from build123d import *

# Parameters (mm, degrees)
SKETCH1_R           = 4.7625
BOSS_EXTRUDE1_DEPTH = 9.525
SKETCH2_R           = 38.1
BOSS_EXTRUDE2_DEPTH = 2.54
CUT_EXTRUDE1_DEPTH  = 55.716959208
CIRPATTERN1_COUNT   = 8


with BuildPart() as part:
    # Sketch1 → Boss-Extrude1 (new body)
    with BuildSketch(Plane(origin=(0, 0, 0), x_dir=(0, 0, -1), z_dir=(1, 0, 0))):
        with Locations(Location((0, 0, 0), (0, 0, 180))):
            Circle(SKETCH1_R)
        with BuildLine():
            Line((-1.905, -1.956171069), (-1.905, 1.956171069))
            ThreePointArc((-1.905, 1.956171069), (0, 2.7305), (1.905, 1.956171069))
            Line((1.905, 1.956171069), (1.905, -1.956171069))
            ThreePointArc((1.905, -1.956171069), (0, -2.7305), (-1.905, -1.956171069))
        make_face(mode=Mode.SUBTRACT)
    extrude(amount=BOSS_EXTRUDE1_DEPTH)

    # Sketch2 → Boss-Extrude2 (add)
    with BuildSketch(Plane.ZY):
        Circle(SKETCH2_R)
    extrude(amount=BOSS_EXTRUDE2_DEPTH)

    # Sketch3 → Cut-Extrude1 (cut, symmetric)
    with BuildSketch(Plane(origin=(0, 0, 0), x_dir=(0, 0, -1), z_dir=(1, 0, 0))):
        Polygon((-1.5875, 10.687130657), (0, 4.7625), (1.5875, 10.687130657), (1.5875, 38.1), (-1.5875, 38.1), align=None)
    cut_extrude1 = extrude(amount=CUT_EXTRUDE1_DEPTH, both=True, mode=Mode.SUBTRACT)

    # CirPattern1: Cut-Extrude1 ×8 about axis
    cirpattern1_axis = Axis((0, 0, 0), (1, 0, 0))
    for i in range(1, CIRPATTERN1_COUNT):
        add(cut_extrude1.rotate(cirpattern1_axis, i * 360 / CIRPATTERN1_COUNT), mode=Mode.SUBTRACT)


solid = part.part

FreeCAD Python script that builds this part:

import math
import FreeCAD as App
import Part
import Sketcher

V = App.Vector
Q = App.Units.Quantity

doc = App.newDocument("Part")
params = doc.addObject("Spreadsheet::Sheet", "Params")
for row, (alias, value) in enumerate([
    ("sketch1_diameter", "0.375 in"),
    ("pad1_length", "0.375 in"),
    ("sketch2_diameter", "3 in"),
    ("pad2_length", "0.1 in"),
    ("sketch3_height", "0.125 in"),
    ("pocket1_length", "111.433918 mm"),
], start=1):
    params.set(f"A{row}", alias)
    params.set(f"B{row}", "=" + value)
    params.setAlias(f"B{row}", alias)

body = doc.addObject("PartDesign::Body", "Body")

sketch1 = body.newObject("Sketcher::SketchObject", "Sketch")
sketch1.AttachmentSupport = (doc.getObject("YZ_Plane"), [""])
sketch1.MapMode = "FlatFace"
sketch1.addGeometry(Part.Circle(V(0, 0, 0), V(0, 0, 1), 4.8), False)
sketch1.addGeometry(Part.ArcOfCircle(Part.Circle(V(0, 0, 0), V(0, 0, 1), 2.7), math.radians(136), math.radians(224)), False)
sketch1.addGeometry(Part.LineSegment(V(-2, 1.9, 0), V(2, 1.9, 0)), False)
sketch1.addGeometry(Part.ArcOfCircle(Part.Circle(V(0, 0, 0), V(0, 0, 1), 2.7), math.radians(-44), math.radians(44)), False)
sketch1.addGeometry(Part.LineSegment(V(2, -1.9, 0), V(-2, -1.9, 0)), False)
sketch1.addConstraint(Sketcher.Constraint("Coincident", 1, 1, 2, 1))
sketch1.addConstraint(Sketcher.Constraint("Coincident", 2, 2, 3, 2))
sketch1.addConstraint(Sketcher.Constraint("Coincident", 3, 1, 4, 1))
sketch1.addConstraint(Sketcher.Constraint("Coincident", 4, 2, 1, 2))
sketch1.addConstraint(Sketcher.Constraint("Horizontal", 2))
sketch1.addConstraint(Sketcher.Constraint("Horizontal", 4))
sketch1.addConstraint(Sketcher.Constraint("Coincident", 0, 3, -1, 1))
sketch1.addConstraint(Sketcher.Constraint("Coincident", 1, 3, -1, 1))
sketch1.addConstraint(Sketcher.Constraint("Coincident", 3, 3, -1, 1))
sketch1.addConstraint(Sketcher.Constraint("Equal", 1, 3))
sketch1.addConstraint(Sketcher.Constraint("Vertical", 2, 2, 3, 1))
sketch1.addConstraint(Sketcher.Constraint("Diameter", 0, Q("0.375 in")))
sketch1.addConstraint(Sketcher.Constraint("Radius", 1, Q("0.1075 in")))
sketch1.addConstraint(Sketcher.Constraint("DistanceY", 3, 1, 2, 2, Q("0.15 in")))
sketch1.setExpression("Constraints[11]", "Params.sketch1_diameter")
pad1 = body.newObject("PartDesign::Pad", "Pad")
pad1.Profile = sketch1
pad1.setExpression("Length", "Params.pad1_length")

sketch2 = body.newObject("Sketcher::SketchObject", "Sketch001")
sketch2.AttachmentSupport = (doc.getObject("YZ_Plane"), [""])
sketch2.MapMode = "FlatFace"
sketch2.addGeometry(Part.Circle(V(0, 0, 0), V(0, 0, 1), 38), False)
sketch2.addConstraint(Sketcher.Constraint("Coincident", 0, 3, -1, 1))
sketch2.addConstraint(Sketcher.Constraint("Diameter", 0, Q("3 in")))
sketch2.setExpression("Constraints[1]", "Params.sketch2_diameter")
pad2 = body.newObject("PartDesign::Pad", "Pad001")
pad2.Profile = sketch2
pad2.setExpression("Length", "Params.pad2_length")
pad2.Reversed = True

sketch3 = body.newObject("Sketcher::SketchObject", "Sketch002")
sketch3.AttachmentSupport = (doc.getObject("YZ_Plane"), [""])
sketch3.MapMode = "FlatFace"
sketch3.addGeometry(Part.LineSegment(V(10.7, 1.6, 0), V(4.8, 0, 0)), False)
sketch3.addGeometry(Part.LineSegment(V(4.8, 0, 0), V(10.7, -1.6, 0)), False)
sketch3.addGeometry(Part.LineSegment(V(10.7, -1.6, 0), V(38.1, -1.6, 0)), False)
sketch3.addGeometry(Part.LineSegment(V(38.1, -1.6, 0), V(38.1, 1.6, 0)), False)
sketch3.addGeometry(Part.LineSegment(V(38.1, 1.6, 0), V(10.7, 1.6, 0)), False)
sketch3.addConstraint(Sketcher.Constraint("Coincident", 0, 2, 1, 1))
sketch3.addConstraint(Sketcher.Constraint("Coincident", 1, 2, 2, 1))
sketch3.addConstraint(Sketcher.Constraint("Coincident", 2, 2, 3, 1))
sketch3.addConstraint(Sketcher.Constraint("Coincident", 3, 2, 4, 1))
sketch3.addConstraint(Sketcher.Constraint("Coincident", 4, 2, 0, 1))
sketch3.addConstraint(Sketcher.Constraint("Horizontal", 2))
sketch3.addConstraint(Sketcher.Constraint("Vertical", 3))
sketch3.addConstraint(Sketcher.Constraint("Horizontal", 4))
sketch3.addConstraint(Sketcher.Constraint("Symmetric", 1, 2, 4, 2, -1))
sketch3.addConstraint(Sketcher.Constraint("PointOnObject", 0, 2, -1))
sketch3.addConstraint(Sketcher.Constraint("Angle", 0, Q("-165 deg")))
sketch3.addConstraint(Sketcher.Constraint("DistanceX", -1, 1, 2, 2, Q("1.5 in")))
sketch3.addConstraint(Sketcher.Constraint("DistanceY", 3, 1, 3, 2, Q("0.125 in")))
sketch3.addConstraint(Sketcher.Constraint("DistanceX", -1, 1, 0, 2, Q("0.1875 in")))
sketch3.setExpression("Constraints[12]", "Params.sketch3_height")
pocket1 = body.newObject("PartDesign::Pocket", "Pocket")
pocket1.Profile = sketch3
pocket1.setExpression("Length", "Params.pocket1_length")
pocket1.Midplane = True
doc.recompute()

polarpattern = body.newObject("PartDesign::PolarPattern", "PolarPattern")
polarpattern.Originals = [pocket1]
polarpattern.Axis = (doc.getObject("X_Axis"), [""])
polarpattern.Angle = 360
polarpattern.Occurrences = 8
body.Tip = polarpattern

doc.recompute()
